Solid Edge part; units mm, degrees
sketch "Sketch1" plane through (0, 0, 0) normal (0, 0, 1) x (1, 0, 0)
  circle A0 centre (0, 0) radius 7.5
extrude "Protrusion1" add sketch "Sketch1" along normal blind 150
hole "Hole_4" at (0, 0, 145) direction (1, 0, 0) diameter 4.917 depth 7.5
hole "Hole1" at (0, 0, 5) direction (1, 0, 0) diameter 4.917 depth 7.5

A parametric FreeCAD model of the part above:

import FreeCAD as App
import Part
import Sketcher
Q = App.Units.Quantity

doc = App.newDocument("Part")
body = doc.addObject("PartDesign::Body", "Body")

# Sketch on XY plane
sketch1 = body.newObject("Sketcher::SketchObject", "Sketch")
sketch1.AttachmentSupport = (doc.getObject("XY_Plane"), [""])
sketch1.MapMode = "FlatFace"
sketch1.addGeometry(Part.Circle(App.Vector(0, 0, 0), App.Vector(0, 0, 1), 8), False)
sketch1.addConstraint(Sketcher.Constraint("Coincident", 0, 3, -1, 1))
sketch1.addConstraint(Sketcher.Constraint("Diameter", 0, Q("15 mm")))
pad1 = body.newObject("PartDesign::Pad", "Pad")
pad1.Profile = sketch1
pad1.Length = 150

# Sketch on YZ plane
sketch2 = body.newObject("Sketcher::SketchObject", "Sketch001")
sketch2.AttachmentSupport = (doc.getObject("YZ_Plane"), [""])
sketch2.MapMode = "FlatFace"
sketch2.addGeometry(Part.Circle(App.Vector(0, 145, 0), App.Vector(0, 0, 1), 2.5), False)
sketch2.addConstraint(Sketcher.Constraint("PointOnObject", 0, 3, -2))
sketch2.addConstraint(Sketcher.Constraint("Diameter", 0, Q("4.917 mm")))
sketch2.addConstraint(Sketcher.Constraint("DistanceY", -1, 1, 0, 3, Q("145 mm")))
doc.recompute()
hole = body.newObject("PartDesign::Hole", "Hole")
hole.Profile = sketch2
hole.ThreadType = "None"
hole.Diameter = 4.917
hole.DepthType = "Dimension"
hole.Depth = 7.5
hole.DrillPoint = "Flat"
hole.Reversed = True

# Sketch on YZ plane
sketch3 = body.newObject("Sketcher::SketchObject", "Sketch002")
sketch3.AttachmentSupport = (doc.getObject("YZ_Plane"), [""])
sketch3.MapMode = "FlatFace"
sketch3.addGeometry(Part.Circle(App.Vector(0, 5, 0), App.Vector(0, 0, 1), 2.5), False)
sketch3.addConstraint(Sketcher.Constraint("PointOnObject", 0, 3, -2))
sketch3.addConstraint(Sketcher.Constraint("Diameter", 0, Q("4.917 mm")))
sketch3.addConstraint(Sketcher.Constraint("DistanceY", -1, 1, 0, 3, Q("5 mm")))
doc.recompute()
hole2 = body.newObject("PartDesign::Hole", "Hole001")
hole2.Profile = sketch3
hole2.ThreadType = "None"
hole2.Diameter = 4.917
hole2.DepthType = "Dimension"
hole2.Depth = 7.5
hole2.DrillPoint = "Flat"
hole2.Reversed = True

doc.recompute()
